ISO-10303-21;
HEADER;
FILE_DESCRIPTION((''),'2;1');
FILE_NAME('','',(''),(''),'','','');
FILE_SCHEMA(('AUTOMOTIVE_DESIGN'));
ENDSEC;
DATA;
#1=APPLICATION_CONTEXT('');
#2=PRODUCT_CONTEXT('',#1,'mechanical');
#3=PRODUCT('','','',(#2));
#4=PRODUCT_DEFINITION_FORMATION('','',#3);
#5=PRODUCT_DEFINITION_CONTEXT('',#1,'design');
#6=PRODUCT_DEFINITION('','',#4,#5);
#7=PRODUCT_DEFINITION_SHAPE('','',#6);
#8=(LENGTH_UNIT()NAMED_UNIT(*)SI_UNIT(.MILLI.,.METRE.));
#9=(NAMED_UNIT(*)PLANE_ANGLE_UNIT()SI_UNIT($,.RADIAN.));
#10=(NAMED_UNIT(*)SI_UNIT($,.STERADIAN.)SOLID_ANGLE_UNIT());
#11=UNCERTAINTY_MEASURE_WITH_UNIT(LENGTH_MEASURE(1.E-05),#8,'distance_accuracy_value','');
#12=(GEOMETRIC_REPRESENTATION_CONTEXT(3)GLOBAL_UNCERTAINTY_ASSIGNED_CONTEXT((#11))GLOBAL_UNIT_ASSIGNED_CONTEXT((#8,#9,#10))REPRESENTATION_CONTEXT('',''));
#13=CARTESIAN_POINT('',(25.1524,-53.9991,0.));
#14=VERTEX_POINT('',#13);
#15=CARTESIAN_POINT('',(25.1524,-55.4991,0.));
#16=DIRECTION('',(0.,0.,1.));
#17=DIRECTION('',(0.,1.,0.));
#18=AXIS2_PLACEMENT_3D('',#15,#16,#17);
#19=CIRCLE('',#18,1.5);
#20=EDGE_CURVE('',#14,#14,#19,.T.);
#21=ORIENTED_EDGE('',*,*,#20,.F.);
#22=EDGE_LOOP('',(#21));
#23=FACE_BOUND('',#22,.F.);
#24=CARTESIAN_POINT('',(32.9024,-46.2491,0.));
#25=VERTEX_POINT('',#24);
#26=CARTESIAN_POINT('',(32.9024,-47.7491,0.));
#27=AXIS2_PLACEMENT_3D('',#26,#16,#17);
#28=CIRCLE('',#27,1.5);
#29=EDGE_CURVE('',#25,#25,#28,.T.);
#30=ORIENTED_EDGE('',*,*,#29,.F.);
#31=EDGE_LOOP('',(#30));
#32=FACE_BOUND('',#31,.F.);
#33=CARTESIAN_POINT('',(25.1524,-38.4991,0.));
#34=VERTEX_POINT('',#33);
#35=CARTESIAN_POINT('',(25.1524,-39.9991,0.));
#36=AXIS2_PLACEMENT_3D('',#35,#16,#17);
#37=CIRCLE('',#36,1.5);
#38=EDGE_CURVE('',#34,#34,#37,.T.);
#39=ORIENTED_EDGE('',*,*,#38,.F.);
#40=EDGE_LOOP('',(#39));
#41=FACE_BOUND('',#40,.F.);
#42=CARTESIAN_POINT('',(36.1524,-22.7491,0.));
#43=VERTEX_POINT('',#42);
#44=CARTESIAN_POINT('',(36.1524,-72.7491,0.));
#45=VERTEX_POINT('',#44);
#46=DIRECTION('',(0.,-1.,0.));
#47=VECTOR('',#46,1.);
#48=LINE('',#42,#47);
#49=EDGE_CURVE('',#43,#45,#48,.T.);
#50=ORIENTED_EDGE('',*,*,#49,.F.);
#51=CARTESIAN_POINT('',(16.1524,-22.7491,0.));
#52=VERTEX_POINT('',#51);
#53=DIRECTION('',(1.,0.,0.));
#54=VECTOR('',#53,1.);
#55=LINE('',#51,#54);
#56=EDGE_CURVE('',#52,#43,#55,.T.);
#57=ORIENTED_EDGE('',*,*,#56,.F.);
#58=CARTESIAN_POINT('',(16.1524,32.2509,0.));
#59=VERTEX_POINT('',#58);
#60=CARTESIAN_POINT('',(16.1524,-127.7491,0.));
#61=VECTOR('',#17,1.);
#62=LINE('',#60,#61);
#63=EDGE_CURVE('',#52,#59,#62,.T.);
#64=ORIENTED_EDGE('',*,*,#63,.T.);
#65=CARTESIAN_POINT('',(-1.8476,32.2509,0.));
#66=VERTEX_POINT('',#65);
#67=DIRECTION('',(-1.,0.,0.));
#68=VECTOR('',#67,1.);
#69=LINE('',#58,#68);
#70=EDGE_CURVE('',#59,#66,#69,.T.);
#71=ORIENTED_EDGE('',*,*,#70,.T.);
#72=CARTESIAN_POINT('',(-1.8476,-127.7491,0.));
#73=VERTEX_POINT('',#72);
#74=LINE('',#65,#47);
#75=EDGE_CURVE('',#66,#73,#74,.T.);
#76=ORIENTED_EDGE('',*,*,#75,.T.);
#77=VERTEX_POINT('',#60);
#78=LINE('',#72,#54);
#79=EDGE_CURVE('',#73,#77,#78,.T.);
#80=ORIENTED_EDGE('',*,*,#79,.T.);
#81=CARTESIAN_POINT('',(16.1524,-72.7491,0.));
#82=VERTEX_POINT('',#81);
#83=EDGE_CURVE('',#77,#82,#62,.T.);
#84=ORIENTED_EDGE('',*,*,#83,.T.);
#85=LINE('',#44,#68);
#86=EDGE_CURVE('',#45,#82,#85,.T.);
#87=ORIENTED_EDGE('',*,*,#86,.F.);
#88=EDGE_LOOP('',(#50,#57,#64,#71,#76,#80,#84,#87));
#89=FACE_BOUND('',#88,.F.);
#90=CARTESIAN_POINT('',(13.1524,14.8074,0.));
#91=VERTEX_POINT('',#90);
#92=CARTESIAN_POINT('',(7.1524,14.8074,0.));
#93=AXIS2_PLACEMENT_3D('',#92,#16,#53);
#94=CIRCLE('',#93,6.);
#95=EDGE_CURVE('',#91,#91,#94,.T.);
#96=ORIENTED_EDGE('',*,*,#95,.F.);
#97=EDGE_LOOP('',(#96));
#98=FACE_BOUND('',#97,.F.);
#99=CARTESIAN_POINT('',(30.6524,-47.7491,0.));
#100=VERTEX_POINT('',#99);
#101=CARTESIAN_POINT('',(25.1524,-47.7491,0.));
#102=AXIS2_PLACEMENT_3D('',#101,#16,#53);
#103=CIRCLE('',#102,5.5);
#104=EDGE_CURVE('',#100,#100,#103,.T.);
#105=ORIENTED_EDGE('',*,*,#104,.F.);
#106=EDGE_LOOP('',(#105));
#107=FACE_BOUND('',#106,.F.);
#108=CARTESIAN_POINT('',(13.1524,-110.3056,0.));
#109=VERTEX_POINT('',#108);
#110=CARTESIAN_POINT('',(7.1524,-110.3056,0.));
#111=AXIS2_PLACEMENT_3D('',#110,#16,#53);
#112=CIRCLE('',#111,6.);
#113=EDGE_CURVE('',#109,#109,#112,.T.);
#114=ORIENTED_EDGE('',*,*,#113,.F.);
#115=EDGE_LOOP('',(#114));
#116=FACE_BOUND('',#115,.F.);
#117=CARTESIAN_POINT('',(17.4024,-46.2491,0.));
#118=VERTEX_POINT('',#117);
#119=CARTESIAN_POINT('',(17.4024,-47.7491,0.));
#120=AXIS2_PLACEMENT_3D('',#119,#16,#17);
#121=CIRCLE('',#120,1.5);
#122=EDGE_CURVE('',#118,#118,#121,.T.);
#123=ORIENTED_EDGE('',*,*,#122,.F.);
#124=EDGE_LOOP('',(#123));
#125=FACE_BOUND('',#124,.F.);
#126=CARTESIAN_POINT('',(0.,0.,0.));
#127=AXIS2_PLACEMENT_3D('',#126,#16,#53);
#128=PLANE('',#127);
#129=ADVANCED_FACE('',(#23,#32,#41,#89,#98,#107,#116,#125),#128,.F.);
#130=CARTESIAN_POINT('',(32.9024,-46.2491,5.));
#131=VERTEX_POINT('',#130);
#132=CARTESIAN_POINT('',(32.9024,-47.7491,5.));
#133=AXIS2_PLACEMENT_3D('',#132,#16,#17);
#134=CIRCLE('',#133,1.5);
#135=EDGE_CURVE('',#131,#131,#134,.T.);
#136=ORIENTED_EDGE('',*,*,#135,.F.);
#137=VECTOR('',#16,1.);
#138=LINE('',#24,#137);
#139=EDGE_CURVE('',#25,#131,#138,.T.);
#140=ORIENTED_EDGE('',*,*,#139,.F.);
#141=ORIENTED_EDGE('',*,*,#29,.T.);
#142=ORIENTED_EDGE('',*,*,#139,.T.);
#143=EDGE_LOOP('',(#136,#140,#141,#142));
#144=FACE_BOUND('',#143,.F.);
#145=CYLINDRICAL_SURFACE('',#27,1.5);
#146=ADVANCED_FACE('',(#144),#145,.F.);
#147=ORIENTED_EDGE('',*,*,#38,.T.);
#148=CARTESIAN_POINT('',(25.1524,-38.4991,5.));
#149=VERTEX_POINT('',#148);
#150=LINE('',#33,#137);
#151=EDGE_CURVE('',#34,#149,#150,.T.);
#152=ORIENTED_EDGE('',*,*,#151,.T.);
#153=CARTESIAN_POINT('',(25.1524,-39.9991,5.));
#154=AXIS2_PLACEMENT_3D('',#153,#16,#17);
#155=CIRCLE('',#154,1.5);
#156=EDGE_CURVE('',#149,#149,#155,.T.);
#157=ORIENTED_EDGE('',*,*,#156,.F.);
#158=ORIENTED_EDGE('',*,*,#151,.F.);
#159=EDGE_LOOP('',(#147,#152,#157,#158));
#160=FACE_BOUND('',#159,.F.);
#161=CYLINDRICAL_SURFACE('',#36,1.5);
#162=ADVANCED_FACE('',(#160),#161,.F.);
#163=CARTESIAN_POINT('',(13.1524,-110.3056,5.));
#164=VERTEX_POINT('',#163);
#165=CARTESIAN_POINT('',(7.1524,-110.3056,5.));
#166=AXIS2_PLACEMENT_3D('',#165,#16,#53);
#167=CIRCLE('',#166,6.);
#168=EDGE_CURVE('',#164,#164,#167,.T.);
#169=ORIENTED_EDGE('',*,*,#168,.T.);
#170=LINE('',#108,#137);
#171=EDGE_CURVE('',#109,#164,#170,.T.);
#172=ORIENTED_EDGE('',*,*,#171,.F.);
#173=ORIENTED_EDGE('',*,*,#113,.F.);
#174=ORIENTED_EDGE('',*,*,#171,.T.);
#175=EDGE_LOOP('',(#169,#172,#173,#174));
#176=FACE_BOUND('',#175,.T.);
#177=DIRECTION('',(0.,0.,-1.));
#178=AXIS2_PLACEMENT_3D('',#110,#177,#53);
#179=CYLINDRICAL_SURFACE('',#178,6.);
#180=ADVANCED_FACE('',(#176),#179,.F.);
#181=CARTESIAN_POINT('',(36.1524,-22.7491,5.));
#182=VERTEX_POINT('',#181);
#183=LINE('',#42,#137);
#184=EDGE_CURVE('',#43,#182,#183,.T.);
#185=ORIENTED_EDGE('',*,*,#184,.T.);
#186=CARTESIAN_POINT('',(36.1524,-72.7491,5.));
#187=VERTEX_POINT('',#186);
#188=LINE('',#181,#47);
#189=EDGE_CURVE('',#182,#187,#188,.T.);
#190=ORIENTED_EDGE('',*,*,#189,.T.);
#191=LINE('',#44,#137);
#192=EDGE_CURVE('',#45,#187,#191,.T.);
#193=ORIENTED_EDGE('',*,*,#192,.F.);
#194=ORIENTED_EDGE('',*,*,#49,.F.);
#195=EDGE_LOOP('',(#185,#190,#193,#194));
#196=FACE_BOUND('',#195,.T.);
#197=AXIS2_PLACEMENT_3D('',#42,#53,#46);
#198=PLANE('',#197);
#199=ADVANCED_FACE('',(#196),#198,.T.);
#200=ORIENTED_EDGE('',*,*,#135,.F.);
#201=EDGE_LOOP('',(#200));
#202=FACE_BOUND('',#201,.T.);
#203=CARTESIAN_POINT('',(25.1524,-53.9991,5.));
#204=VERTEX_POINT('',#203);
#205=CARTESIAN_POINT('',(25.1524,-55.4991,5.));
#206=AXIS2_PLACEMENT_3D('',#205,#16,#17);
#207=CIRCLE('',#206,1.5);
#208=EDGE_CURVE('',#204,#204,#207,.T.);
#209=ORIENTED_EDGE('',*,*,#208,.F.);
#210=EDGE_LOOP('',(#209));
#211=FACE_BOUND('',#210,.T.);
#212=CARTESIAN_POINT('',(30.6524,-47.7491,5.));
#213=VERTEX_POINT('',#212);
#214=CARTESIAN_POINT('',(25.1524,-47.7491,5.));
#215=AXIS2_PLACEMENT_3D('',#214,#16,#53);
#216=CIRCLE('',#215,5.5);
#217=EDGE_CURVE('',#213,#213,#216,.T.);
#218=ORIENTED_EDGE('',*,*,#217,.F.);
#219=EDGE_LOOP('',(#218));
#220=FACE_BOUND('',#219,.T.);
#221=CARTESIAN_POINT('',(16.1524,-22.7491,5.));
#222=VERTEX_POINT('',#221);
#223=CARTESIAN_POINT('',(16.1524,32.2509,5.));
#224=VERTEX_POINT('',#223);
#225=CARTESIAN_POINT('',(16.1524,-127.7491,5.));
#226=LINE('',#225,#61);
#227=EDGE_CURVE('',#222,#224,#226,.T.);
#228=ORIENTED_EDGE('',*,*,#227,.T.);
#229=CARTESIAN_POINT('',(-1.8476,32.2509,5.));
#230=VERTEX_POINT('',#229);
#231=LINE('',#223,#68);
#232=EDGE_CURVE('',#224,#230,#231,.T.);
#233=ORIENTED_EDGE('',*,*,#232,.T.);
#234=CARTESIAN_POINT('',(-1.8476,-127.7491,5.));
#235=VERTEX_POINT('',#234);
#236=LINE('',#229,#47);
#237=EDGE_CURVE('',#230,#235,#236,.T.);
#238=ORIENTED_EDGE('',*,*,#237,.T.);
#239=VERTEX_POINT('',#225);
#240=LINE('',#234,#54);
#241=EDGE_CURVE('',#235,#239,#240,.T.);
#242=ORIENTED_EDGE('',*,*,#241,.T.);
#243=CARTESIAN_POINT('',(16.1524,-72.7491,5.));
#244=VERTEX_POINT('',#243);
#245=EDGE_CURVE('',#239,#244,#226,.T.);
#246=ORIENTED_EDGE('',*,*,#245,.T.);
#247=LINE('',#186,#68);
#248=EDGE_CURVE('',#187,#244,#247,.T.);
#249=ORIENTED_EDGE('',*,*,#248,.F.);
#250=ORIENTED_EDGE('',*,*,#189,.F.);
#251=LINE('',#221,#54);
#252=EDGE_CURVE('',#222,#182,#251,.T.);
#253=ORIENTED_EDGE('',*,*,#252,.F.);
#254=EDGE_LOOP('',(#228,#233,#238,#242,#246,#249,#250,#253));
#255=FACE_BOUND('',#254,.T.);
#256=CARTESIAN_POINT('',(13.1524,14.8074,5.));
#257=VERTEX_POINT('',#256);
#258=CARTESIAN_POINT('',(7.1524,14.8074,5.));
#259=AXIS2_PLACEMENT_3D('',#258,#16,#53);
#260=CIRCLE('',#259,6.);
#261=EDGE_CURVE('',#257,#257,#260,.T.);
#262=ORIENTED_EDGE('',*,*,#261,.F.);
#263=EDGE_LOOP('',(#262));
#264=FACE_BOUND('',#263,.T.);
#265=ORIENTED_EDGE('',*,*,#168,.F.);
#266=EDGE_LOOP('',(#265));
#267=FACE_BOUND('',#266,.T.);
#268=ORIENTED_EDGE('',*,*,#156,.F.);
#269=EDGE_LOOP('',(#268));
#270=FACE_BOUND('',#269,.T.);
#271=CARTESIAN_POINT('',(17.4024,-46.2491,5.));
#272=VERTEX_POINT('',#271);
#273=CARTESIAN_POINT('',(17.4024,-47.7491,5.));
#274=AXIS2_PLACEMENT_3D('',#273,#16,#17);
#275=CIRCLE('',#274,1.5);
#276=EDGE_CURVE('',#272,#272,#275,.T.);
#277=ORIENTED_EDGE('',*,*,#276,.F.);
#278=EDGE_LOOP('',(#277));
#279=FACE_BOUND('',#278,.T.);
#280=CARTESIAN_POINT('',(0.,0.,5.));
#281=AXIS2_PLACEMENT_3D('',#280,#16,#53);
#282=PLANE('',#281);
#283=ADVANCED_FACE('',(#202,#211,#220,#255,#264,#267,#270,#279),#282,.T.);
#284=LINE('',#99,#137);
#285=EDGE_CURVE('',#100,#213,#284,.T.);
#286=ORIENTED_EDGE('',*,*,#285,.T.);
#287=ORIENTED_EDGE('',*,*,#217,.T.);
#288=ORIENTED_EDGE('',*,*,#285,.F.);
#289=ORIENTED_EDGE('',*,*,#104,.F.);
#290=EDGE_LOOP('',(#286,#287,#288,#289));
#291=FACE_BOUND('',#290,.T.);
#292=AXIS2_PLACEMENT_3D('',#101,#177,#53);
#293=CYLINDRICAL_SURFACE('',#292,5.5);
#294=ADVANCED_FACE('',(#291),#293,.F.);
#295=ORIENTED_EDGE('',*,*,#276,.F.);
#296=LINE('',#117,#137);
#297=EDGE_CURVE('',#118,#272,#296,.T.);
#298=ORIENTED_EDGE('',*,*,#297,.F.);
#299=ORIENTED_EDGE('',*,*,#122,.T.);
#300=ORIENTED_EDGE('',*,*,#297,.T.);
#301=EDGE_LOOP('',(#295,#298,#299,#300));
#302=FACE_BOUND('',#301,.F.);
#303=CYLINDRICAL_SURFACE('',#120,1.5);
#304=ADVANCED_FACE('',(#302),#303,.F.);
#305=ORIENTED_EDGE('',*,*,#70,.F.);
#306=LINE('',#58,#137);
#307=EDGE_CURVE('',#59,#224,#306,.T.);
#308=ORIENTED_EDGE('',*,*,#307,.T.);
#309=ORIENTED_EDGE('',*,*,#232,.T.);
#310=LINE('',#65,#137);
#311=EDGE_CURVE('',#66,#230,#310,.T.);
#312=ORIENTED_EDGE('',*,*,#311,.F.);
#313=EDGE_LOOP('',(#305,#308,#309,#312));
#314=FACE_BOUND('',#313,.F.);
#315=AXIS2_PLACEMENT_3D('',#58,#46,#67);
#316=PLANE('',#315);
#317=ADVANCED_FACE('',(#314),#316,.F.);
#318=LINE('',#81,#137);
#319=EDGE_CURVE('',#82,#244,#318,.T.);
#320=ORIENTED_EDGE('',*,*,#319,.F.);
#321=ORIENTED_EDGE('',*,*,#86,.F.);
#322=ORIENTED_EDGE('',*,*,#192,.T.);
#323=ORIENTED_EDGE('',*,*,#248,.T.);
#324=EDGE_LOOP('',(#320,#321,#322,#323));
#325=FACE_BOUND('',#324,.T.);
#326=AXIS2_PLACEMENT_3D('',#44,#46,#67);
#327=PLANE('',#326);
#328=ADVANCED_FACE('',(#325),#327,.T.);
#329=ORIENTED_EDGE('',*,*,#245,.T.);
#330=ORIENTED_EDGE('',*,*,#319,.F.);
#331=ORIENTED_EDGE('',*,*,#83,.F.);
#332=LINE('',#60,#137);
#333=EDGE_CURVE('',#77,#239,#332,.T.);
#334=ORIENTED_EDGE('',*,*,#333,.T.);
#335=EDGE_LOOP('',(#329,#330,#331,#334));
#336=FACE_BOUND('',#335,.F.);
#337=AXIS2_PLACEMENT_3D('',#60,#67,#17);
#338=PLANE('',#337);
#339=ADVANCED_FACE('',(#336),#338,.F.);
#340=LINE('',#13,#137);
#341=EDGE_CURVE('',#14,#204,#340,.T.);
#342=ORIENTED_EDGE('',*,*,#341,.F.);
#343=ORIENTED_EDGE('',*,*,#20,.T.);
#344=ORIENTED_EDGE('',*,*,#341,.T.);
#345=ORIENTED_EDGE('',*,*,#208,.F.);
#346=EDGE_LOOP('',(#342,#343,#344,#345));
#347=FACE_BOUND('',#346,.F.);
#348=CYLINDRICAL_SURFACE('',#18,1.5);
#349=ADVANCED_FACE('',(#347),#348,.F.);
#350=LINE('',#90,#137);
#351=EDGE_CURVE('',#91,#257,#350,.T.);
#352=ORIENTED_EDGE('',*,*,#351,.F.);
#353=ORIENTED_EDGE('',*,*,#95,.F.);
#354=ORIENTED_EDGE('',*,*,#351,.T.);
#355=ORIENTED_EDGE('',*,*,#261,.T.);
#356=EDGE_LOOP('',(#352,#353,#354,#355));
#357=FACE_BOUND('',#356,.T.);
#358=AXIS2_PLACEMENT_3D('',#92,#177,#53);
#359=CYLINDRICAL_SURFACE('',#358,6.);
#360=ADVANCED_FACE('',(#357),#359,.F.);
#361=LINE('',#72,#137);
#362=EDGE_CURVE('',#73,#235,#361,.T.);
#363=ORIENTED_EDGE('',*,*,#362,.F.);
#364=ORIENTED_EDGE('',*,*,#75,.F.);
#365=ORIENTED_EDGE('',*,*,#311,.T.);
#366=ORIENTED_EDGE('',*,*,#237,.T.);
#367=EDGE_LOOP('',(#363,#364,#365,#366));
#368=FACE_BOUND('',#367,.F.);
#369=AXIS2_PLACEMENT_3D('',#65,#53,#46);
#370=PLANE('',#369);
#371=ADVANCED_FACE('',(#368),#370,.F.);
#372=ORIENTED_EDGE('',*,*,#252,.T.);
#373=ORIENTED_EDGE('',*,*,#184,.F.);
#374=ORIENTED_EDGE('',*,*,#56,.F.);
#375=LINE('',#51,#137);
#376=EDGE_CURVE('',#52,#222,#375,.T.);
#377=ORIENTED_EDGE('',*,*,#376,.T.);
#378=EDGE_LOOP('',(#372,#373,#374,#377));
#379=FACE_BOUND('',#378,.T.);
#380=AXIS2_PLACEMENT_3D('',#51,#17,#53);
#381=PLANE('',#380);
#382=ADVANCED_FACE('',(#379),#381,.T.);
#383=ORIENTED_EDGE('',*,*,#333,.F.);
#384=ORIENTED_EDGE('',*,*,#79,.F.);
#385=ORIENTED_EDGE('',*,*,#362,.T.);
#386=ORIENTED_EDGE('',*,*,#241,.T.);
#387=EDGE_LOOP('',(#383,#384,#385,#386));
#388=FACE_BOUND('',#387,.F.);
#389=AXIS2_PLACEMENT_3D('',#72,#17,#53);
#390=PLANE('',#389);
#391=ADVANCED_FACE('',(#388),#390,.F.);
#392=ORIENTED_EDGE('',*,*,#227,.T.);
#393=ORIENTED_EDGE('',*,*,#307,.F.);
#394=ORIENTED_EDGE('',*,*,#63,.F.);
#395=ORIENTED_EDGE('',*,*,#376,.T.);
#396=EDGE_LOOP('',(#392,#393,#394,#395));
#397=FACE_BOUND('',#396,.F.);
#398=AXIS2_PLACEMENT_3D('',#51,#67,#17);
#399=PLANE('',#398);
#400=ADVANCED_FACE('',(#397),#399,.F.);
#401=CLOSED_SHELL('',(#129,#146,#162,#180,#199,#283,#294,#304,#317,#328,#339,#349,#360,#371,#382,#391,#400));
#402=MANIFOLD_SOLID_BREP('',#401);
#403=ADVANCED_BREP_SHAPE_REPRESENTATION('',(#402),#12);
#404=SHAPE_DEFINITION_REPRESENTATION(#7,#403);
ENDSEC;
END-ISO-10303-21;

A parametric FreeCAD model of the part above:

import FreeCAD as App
import Part
import Sketcher
from FreeCAD import Vector


def add_polygon(sketch, points):
    """Adds a closed chain of lines whose ends are joined by coincident constraints."""
    first, n = sketch.GeometryCount, len(points)
    for a, b in zip(points, points[1:] + points[:1]):
        sketch.addGeometry(Part.LineSegment(App.Vector(*a, 0), App.Vector(*b, 0)), False)
    for i in range(n):
        sketch.addConstraint(Sketcher.Constraint("Coincident", first + i, 2, first + (i + 1) % n, 1))

doc = App.newDocument("Part")
body = doc.addObject("PartDesign::Body", "Body")

# Sketch on XY plane
sketch1 = doc.addObject("Sketcher::SketchObject", "Sketch")
body.addObject(sketch1)
sketch1.AttachmentSupport = (doc.XY_Plane, [""])
sketch1.MapMode = "FlatFace"
add_polygon(sketch1, [(16.1524, 32.2509), (-1.8476, 32.2509), (-1.8476, -127.7491), (16.1524, -127.7491), (16.1524, -72.7491), (36.1524, -72.7491), (36.1524, -22.7491), (16.1524, -22.7491)])  # lines 0-7
sketch1.addGeometry(Part.Circle(Vector(7.1524, -110.3056, 0), Vector(0, 0, 1), 6), False)  # 8
sketch1.addGeometry(Part.Circle(Vector(7.1524, 14.8074, 0), Vector(0, 0, 1), 6), False)  # 9
sketch1.addGeometry(Part.Circle(Vector(25.1524, -47.7491, 0), Vector(0, 0, 1), 5.5), False)  # 10
sketch1.addConstraint(Sketcher.Constraint("Horizontal", 0))
sketch1.addConstraint(Sketcher.Constraint("Vertical", 1))
sketch1.addConstraint(Sketcher.Constraint("Horizontal", 2))
sketch1.addConstraint(Sketcher.Constraint("Vertical", 3))
sketch1.addConstraint(Sketcher.Constraint("Horizontal", 4))
sketch1.addConstraint(Sketcher.Constraint("Vertical", 5))
sketch1.addConstraint(Sketcher.Constraint("Horizontal", 6))
sketch1.addConstraint(Sketcher.Constraint("Vertical", 7))
sketch1.addConstraint(Sketcher.Constraint("Equal", 8, 9))
sketch1.addConstraint(Sketcher.Constraint("Vertical", 8, 3, 9, 3))
sketch1.addConstraint(Sketcher.Constraint("Vertical", 3, 2, 6, 2))
sketch1.addConstraint(Sketcher.Constraint("Equal", 3, 7))
sketch1.addConstraint(Sketcher.Constraint("Diameter", 8, 12.0))
sketch1.addConstraint(Sketcher.Constraint("Diameter", 10, 11.0))
sketch1.addConstraint(Sketcher.Constraint("DistanceX", 0, 2, 0, 1, 18.0))
sketch1.addConstraint(Sketcher.Constraint("DistanceX", 4, 1, 4, 2, 20.0))
sketch1.addConstraint(Sketcher.Constraint("DistanceY", 1, 2, 1, 1, 160.0))
sketch1.addConstraint(Sketcher.Constraint("DistanceY", 3, 1, 3, 2, 55.0))
sketch1.addConstraint(Sketcher.Constraint("DistanceX", 8, 3, 10, 3, 18.0))
sketch1.addConstraint(Sketcher.Constraint("DistanceX", 0, 2, 9, 3, 9.0))
sketch1.addConstraint(Sketcher.Constraint("DistanceY", 8, 3, 9, 3, 125.113))
sketch1.addConstraint(Sketcher.Constraint("DistanceY", 10, 3, 0, 2, 80.0))
sketch1.addConstraint(Sketcher.Constraint("DistanceY", 9, 3, 0, 2, 17.4435))
sketch1.addConstraint(Sketcher.Constraint("DistanceY", 10, 3, -1, 1, 47.749))
sketch1.addConstraint(Sketcher.Constraint("DistanceX", -1, 1, 8, 3, 7.1524))
pad1 = doc.addObject("PartDesign::Pad", "Pad")
body.addObject(pad1)
pad1.Profile = sketch1
pad1.Length = 5

# Sketch on XY plane
sketch2 = doc.addObject("Sketcher::SketchObject", "Sketch001")
body.addObject(sketch2)
sketch2.AttachmentSupport = (doc.XY_Plane, [""])
sketch2.MapMode = "FlatFace"
sketch2.addGeometry(Part.Circle(Vector(25.1524, -55.4991, 0), Vector(0, 0, 1), 1.5), False)
sketch2.addGeometry(Part.Circle(Vector(32.9024, -47.7491, 0), Vector(0, 0, 1), 1.5), False)
sketch2.addGeometry(Part.Circle(Vector(25.1524, -39.9991, 0), Vector(0, 0, 1), 1.5), False)
sketch2.addGeometry(Part.Circle(Vector(17.4024, -47.7491, 0), Vector(0, 0, 1), 1.5), False)
sketch2.addConstraint(Sketcher.Constraint("Equal", 0, 1))
sketch2.addConstraint(Sketcher.Constraint("Equal", 1, 2))
sketch2.addConstraint(Sketcher.Constraint("Equal", 2, 3))
sketch2.addConstraint(Sketcher.Constraint("Horizontal", 1, 3, 3, 3))
sketch2.addConstraint(Sketcher.Constraint("Vertical", 0, 3, 2, 3))
sketch2.addConstraint(Sketcher.Constraint("Diameter", 0, 3.0))
sketch2.addConstraint(Sketcher.Constraint("DistanceY", 0, 3, 2, 3, 15.5))
sketch2.addConstraint(Sketcher.Constraint("DistanceX", 3, 3, 1, 3, 15.5))
sketch2.addConstraint(Sketcher.Constraint("DistanceX", 0, 3, 1, 3, 7.75))
sketch2.addConstraint(Sketcher.Constraint("DistanceY", 0, 3, 1, 3, 7.75))
sketch2.addConstraint(Sketcher.Constraint("DistanceY", 0, 3, -1, 1, 55.499))
sketch2.addConstraint(Sketcher.Constraint("DistanceX", -1, 1, 0, 3, 25.1524))
doc.recompute()
hole = doc.addObject("PartDesign::Hole", "Hole")
body.addObject(hole)
hole.Profile = sketch2
hole.ThreadType = "None"
hole.Diameter = 3
hole.DepthType = "ThroughAll"
hole.Reversed = True

doc.recompute()
